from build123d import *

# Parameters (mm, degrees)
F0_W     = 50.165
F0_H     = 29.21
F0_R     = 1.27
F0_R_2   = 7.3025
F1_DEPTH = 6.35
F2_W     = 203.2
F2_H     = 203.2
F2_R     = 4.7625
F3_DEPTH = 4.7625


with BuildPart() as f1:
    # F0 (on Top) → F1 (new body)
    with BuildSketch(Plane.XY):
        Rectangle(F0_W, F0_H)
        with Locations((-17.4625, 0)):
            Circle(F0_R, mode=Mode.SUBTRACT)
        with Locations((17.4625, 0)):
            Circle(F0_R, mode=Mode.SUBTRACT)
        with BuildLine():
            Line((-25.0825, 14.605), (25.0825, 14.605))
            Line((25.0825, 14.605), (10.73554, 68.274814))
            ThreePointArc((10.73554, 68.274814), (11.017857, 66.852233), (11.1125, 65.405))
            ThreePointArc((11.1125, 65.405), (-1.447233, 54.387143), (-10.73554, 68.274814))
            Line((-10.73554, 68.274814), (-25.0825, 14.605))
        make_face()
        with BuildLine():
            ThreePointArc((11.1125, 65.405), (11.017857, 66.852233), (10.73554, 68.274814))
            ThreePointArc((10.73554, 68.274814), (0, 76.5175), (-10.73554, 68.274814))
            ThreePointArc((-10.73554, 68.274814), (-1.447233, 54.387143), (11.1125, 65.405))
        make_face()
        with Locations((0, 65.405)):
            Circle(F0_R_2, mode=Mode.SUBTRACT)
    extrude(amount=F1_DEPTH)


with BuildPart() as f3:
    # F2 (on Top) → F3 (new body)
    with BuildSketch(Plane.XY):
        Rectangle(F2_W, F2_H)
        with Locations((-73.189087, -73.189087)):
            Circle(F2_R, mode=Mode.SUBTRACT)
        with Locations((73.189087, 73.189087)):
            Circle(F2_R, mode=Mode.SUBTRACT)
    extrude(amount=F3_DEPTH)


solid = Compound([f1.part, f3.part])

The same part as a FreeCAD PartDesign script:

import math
import FreeCAD as App
import Part
import Sketcher
from FreeCAD import Vector
Q = App.Units.Quantity

doc = App.newDocument("Part")
body = doc.addObject("PartDesign::Body", "Body")

# Sketch on XY plane
sketch1 = doc.addObject("Sketcher::SketchObject", "Sketch")
body.addObject(sketch1)
sketch1.AttachmentSupport = (doc.XY_Plane, [""])
sketch1.MapMode = "FlatFace"
sketch1.addGeometry([
    Part.LineSegment(Vector(-25.1, 14.6, 0), Vector(-25.1, -14.6, 0)),  # 0
    Part.LineSegment(Vector(-25.1, -14.6, 0), Vector(25.1, -14.6, 0)),  # 1
    Part.LineSegment(Vector(25.1, -14.6, 0), Vector(25.1, 14.6, 0)),  # 2
    Part.LineSegment(Vector(25.1, 14.6, 0), Vector(10.7, 68.3, 0)),  # 3
    Part.ArcOfCircle(Part.Circle(Vector(0, 65.4, 0), Vector(0, 0, 1), 11.1), math.radians(15), math.radians(165)),  # 4
    Part.LineSegment(Vector(-10.7, 68.3, 0), Vector(-25.1, 14.6, 0)),  # 5
    Part.Circle(Vector(-17.5, 0, 0), Vector(0, 0, 1), 1.3),  # 6
    Part.Circle(Vector(17.5, 0, 0), Vector(0, 0, 1), 1.3),  # 7
    Part.Circle(Vector(0, 65.4, 0), Vector(0, 0, 1), 7.3),  # 8
], False)
sketch1.addConstraint([
    Sketcher.Constraint("Coincident", 0, 2, 1, 1),
    Sketcher.Constraint("Coincident", 1, 2, 2, 1),
    Sketcher.Constraint("Coincident", 2, 2, 3, 1),
    Sketcher.Constraint("Tangent", 3, 2, 4, 1),
    Sketcher.Constraint("Tangent", 4, 2, 5, 1),
    Sketcher.Constraint("Coincident", 5, 2, 0, 1),
    Sketcher.Constraint("Vertical", 0),
    Sketcher.Constraint("Horizontal", 1),
    Sketcher.Constraint("Vertical", 2),
    Sketcher.Constraint("Coincident", 8, 3, 4, 3),
    Sketcher.Constraint("Equal", 6, 7),
    Sketcher.Constraint("Symmetric", 6, 3, 7, 3, -1, 1),
    Sketcher.Constraint("Symmetric", 0, 2, 2, 2, -1, 1),
    Sketcher.Constraint("Symmetric", 3, 2, 4, 2, -2),
    Sketcher.Constraint("PointOnObject", 6, 3, -1),
    Sketcher.Constraint("Diameter", 6, Q("0.1 in")),
    Sketcher.Constraint("Diameter", 8, Q("0.575 in")),
    Sketcher.Constraint("Radius", 4, Q("0.4375 in")),
    Sketcher.Constraint("DistanceY", 2, 2, 8, 3, Q("2 in")),
    Sketcher.Constraint("DistanceY", 0, 2, 0, 1, Q("1.15 in")),
    Sketcher.Constraint("DistanceX", 0, 2, 6, 3, Q("0.3 in")),
    Sketcher.Constraint("DistanceX", 1, 1, 1, 2, Q("1.975 in")),
])
pad1 = doc.addObject("PartDesign::Pad", "Pad")
body.addObject(pad1)
pad1.Profile = sketch1
pad1.Length = Q("0.25 in")
body2 = doc.addObject("PartDesign::Body", "Body001")

# Sketch on XY plane
sketch2 = doc.addObject("Sketcher::SketchObject", "Sketch001")
body2.addObject(sketch2)
sketch2.AttachmentSupport = (doc.getObject("XY_Plane001"), [""])
sketch2.MapMode = "FlatFace"
sketch2.addGeometry([
    Part.LineSegment(Vector(-101.6, 101.6, 0), Vector(-101.6, -101.6, 0)),  # 0
    Part.LineSegment(Vector(-101.6, -101.6, 0), Vector(101.6, -101.6, 0)),  # 1
    Part.LineSegment(Vector(101.6, -101.6, 0), Vector(101.6, 101.6, 0)),  # 2
    Part.LineSegment(Vector(101.6, 101.6, 0), Vector(-101.6, 101.6, 0)),  # 3
    Part.Circle(Vector(-73.2, -73.2, 0), Vector(0, 0, 1), 4.8),  # 4
    Part.Circle(Vector(73.2, 73.2, 0), Vector(0, 0, 1), 4.8),  # 5
], False)
sketch2.addConstraint([
    Sketcher.Constraint("Coincident", 0, 2, 1, 1),
    Sketcher.Constraint("Coincident", 1, 2, 2, 1),
    Sketcher.Constraint("Coincident", 2, 2, 3, 1),
    Sketcher.Constraint("Coincident", 3, 2, 0, 1),
    Sketcher.Constraint("Vertical", 0),
    Sketcher.Constraint("Horizontal", 1),
    Sketcher.Constraint("Vertical", 2),
    Sketcher.Constraint("Horizontal", 3),
    Sketcher.Constraint("Equal", 4, 5),
    Sketcher.Constraint("Symmetric", 4, 3, 5, 3, -1, 1),
    Sketcher.Constraint("Symmetric", 0, 2, 2, 2, -1, 1),
    Sketcher.Constraint("Equal", 3, 0),
    Sketcher.Constraint("DistanceX", 1, 1, 1, 2, Q("8 in")),
    Sketcher.Constraint("Diameter", 4, Q("0.375 in")),
    Sketcher.Constraint("DistanceX", 4, 3, -1, 1, 73.189087),
    Sketcher.Constraint("DistanceY", 4, 3, -1, 1, 73.189087),
])
pad2 = doc.addObject("PartDesign::Pad", "Pad001")
body2.addObject(pad2)
pad2.Profile = sketch2
pad2.Length = Q("0.1875 in")

doc.recompute()
